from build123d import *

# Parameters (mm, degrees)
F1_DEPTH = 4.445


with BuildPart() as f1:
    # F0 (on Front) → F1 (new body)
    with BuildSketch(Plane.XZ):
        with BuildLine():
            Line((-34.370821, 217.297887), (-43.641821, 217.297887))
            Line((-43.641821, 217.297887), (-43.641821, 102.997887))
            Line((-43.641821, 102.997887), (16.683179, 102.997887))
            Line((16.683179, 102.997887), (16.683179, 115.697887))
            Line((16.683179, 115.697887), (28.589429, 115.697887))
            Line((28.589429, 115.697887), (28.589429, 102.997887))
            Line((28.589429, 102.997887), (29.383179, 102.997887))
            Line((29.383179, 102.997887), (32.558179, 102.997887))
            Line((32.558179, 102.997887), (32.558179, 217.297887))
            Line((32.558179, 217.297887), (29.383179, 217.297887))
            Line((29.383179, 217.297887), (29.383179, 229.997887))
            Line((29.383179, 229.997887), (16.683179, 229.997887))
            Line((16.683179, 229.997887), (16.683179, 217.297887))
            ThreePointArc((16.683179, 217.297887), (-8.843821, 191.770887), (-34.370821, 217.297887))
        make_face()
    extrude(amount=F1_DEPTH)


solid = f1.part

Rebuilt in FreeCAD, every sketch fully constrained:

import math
import FreeCAD as App
import Part
import Sketcher
from FreeCAD import Vector
Q = App.Units.Quantity

doc = App.newDocument("Part")
body = doc.addObject("PartDesign::Body", "Body")

# Sketch on XZ plane
sketch1 = body.newObject("Sketcher::SketchObject", "Sketch")
sketch1.AttachmentSupport = (doc.getObject("XZ_Plane"), [""])
sketch1.MapMode = "FlatFace"
sketch1.addGeometry(Part.LineSegment(Vector(-34.370821, 217.297887, 0), Vector(-43.641821, 217.297887, 0)), False)
sketch1.addGeometry(Part.LineSegment(Vector(-43.641821, 217.297887, 0), Vector(-43.641821, 102.997887, 0)), False)
sketch1.addGeometry(Part.LineSegment(Vector(-43.641821, 102.997887, 0), Vector(16.683179, 102.997887, 0)), False)
sketch1.addGeometry(Part.LineSegment(Vector(16.683179, 102.997887, 0), Vector(16.683179, 115.697887, 0)), False)
sketch1.addGeometry(Part.LineSegment(Vector(16.683179, 115.697887, 0), Vector(28.589429, 115.697887, 0)), False)
sketch1.addGeometry(Part.LineSegment(Vector(28.589429, 115.697887, 0), Vector(28.589429, 102.997887, 0)), False)
sketch1.addGeometry(Part.LineSegment(Vector(28.589429, 102.997887, 0), Vector(32.558179, 102.997887, 0)), False)
sketch1.addGeometry(Part.LineSegment(Vector(32.558179, 102.997887, 0), Vector(32.558179, 217.297887, 0)), False)
sketch1.addGeometry(Part.LineSegment(Vector(32.558179, 217.297887, 0), Vector(29.383179, 217.297887, 0)), False)
sketch1.addGeometry(Part.LineSegment(Vector(29.383179, 217.297887, 0), Vector(29.383179, 229.997887, 0)), False)
sketch1.addGeometry(Part.LineSegment(Vector(29.383179, 229.997887, 0), Vector(16.683179, 229.997887, 0)), False)
sketch1.addGeometry(Part.LineSegment(Vector(16.683179, 229.997887, 0), Vector(16.683179, 217.297887, 0)), False)
sketch1.addGeometry(Part.ArcOfCircle(Part.Circle(Vector(-8.843821, 217.297887, 0), Vector(0, 0, 1), 25.527), math.radians(180), math.radians(360)), False)
sketch1.addConstraint(Sketcher.Constraint("Coincident", 0, 2, 1, 1))
sketch1.addConstraint(Sketcher.Constraint("Coincident", 1, 2, 2, 1))
sketch1.addConstraint(Sketcher.Constraint("Coincident", 2, 2, 3, 1))
sketch1.addConstraint(Sketcher.Constraint("Coincident", 3, 2, 4, 1))
sketch1.addConstraint(Sketcher.Constraint("Coincident", 4, 2, 5, 1))
sketch1.addConstraint(Sketcher.Constraint("Coincident", 5, 2, 6, 1))
sketch1.addConstraint(Sketcher.Constraint("Coincident", 6, 2, 7, 1))
sketch1.addConstraint(Sketcher.Constraint("Coincident", 7, 2, 8, 1))
sketch1.addConstraint(Sketcher.Constraint("Coincident", 8, 2, 9, 1))
sketch1.addConstraint(Sketcher.Constraint("Coincident", 9, 2, 10, 1))
sketch1.addConstraint(Sketcher.Constraint("Coincident", 10, 2, 11, 1))
sketch1.addConstraint(Sketcher.Constraint("Tangent", 11, 2, 12, 2))
sketch1.addConstraint(Sketcher.Constraint("Coincident", 12, 1, 0, 1))
sketch1.addConstraint(Sketcher.Constraint("Horizontal", 0))
sketch1.addConstraint(Sketcher.Constraint("Vertical", 1))
sketch1.addConstraint(Sketcher.Constraint("Horizontal", 2))
sketch1.addConstraint(Sketcher.Constraint("Vertical", 3))
sketch1.addConstraint(Sketcher.Constraint("Horizontal", 4))
sketch1.addConstraint(Sketcher.Constraint("Vertical", 5))
sketch1.addConstraint(Sketcher.Constraint("Horizontal", 6))
sketch1.addConstraint(Sketcher.Constraint("Vertical", 7))
sketch1.addConstraint(Sketcher.Constraint("Horizontal", 8))
sketch1.addConstraint(Sketcher.Constraint("Vertical", 9))
sketch1.addConstraint(Sketcher.Constraint("Horizontal", 10))
sketch1.addConstraint(Sketcher.Constraint("Vertical", 11))
sketch1.addConstraint(Sketcher.Constraint("Horizontal", 12, 3, 0, 2))
sketch1.addConstraint(Sketcher.Constraint("Horizontal", 2, 2, 5, 2))
sketch1.addConstraint(Sketcher.Constraint("Horizontal", 0, 2, 7, 2))
sketch1.addConstraint(Sketcher.Constraint("Vertical", 3, 2, 10, 2))
sketch1.addConstraint(Sketcher.Constraint("Equal", 10, 3))
sketch1.addConstraint(Sketcher.Constraint("Equal", 5, 9))
sketch1.addConstraint(Sketcher.Constraint("DistanceX", 10, 2, 10, 1, Q("0.5 in")))
sketch1.addConstraint(Sketcher.Constraint("DistanceY", 1, 2, 1, 1, Q("4.5 in")))
sketch1.addConstraint(Sketcher.Constraint("Radius", 12, Q("1.005 in")))
sketch1.addConstraint(Sketcher.Constraint("DistanceX", 1, 2, 6, 2, Q("3 in")))
sketch1.addConstraint(Sketcher.Constraint("DistanceX", 0, 2, 0, 1, Q("0.365 in")))
sketch1.addConstraint(Sketcher.Constraint("DistanceX", 4, 1, 4, 2, Q("0.46875 in")))
sketch1.addConstraint(Sketcher.Constraint("DistanceX", 12, 3, -1, 1, 8.843821))
sketch1.addConstraint(Sketcher.Constraint("DistanceY", -1, 1, 12, 3, 217.297887))
pad1 = body.newObject("PartDesign::Pad", "Pad")
pad1.Profile = sketch1
pad1.Length = Q("0.175 in")

doc.recompute()
